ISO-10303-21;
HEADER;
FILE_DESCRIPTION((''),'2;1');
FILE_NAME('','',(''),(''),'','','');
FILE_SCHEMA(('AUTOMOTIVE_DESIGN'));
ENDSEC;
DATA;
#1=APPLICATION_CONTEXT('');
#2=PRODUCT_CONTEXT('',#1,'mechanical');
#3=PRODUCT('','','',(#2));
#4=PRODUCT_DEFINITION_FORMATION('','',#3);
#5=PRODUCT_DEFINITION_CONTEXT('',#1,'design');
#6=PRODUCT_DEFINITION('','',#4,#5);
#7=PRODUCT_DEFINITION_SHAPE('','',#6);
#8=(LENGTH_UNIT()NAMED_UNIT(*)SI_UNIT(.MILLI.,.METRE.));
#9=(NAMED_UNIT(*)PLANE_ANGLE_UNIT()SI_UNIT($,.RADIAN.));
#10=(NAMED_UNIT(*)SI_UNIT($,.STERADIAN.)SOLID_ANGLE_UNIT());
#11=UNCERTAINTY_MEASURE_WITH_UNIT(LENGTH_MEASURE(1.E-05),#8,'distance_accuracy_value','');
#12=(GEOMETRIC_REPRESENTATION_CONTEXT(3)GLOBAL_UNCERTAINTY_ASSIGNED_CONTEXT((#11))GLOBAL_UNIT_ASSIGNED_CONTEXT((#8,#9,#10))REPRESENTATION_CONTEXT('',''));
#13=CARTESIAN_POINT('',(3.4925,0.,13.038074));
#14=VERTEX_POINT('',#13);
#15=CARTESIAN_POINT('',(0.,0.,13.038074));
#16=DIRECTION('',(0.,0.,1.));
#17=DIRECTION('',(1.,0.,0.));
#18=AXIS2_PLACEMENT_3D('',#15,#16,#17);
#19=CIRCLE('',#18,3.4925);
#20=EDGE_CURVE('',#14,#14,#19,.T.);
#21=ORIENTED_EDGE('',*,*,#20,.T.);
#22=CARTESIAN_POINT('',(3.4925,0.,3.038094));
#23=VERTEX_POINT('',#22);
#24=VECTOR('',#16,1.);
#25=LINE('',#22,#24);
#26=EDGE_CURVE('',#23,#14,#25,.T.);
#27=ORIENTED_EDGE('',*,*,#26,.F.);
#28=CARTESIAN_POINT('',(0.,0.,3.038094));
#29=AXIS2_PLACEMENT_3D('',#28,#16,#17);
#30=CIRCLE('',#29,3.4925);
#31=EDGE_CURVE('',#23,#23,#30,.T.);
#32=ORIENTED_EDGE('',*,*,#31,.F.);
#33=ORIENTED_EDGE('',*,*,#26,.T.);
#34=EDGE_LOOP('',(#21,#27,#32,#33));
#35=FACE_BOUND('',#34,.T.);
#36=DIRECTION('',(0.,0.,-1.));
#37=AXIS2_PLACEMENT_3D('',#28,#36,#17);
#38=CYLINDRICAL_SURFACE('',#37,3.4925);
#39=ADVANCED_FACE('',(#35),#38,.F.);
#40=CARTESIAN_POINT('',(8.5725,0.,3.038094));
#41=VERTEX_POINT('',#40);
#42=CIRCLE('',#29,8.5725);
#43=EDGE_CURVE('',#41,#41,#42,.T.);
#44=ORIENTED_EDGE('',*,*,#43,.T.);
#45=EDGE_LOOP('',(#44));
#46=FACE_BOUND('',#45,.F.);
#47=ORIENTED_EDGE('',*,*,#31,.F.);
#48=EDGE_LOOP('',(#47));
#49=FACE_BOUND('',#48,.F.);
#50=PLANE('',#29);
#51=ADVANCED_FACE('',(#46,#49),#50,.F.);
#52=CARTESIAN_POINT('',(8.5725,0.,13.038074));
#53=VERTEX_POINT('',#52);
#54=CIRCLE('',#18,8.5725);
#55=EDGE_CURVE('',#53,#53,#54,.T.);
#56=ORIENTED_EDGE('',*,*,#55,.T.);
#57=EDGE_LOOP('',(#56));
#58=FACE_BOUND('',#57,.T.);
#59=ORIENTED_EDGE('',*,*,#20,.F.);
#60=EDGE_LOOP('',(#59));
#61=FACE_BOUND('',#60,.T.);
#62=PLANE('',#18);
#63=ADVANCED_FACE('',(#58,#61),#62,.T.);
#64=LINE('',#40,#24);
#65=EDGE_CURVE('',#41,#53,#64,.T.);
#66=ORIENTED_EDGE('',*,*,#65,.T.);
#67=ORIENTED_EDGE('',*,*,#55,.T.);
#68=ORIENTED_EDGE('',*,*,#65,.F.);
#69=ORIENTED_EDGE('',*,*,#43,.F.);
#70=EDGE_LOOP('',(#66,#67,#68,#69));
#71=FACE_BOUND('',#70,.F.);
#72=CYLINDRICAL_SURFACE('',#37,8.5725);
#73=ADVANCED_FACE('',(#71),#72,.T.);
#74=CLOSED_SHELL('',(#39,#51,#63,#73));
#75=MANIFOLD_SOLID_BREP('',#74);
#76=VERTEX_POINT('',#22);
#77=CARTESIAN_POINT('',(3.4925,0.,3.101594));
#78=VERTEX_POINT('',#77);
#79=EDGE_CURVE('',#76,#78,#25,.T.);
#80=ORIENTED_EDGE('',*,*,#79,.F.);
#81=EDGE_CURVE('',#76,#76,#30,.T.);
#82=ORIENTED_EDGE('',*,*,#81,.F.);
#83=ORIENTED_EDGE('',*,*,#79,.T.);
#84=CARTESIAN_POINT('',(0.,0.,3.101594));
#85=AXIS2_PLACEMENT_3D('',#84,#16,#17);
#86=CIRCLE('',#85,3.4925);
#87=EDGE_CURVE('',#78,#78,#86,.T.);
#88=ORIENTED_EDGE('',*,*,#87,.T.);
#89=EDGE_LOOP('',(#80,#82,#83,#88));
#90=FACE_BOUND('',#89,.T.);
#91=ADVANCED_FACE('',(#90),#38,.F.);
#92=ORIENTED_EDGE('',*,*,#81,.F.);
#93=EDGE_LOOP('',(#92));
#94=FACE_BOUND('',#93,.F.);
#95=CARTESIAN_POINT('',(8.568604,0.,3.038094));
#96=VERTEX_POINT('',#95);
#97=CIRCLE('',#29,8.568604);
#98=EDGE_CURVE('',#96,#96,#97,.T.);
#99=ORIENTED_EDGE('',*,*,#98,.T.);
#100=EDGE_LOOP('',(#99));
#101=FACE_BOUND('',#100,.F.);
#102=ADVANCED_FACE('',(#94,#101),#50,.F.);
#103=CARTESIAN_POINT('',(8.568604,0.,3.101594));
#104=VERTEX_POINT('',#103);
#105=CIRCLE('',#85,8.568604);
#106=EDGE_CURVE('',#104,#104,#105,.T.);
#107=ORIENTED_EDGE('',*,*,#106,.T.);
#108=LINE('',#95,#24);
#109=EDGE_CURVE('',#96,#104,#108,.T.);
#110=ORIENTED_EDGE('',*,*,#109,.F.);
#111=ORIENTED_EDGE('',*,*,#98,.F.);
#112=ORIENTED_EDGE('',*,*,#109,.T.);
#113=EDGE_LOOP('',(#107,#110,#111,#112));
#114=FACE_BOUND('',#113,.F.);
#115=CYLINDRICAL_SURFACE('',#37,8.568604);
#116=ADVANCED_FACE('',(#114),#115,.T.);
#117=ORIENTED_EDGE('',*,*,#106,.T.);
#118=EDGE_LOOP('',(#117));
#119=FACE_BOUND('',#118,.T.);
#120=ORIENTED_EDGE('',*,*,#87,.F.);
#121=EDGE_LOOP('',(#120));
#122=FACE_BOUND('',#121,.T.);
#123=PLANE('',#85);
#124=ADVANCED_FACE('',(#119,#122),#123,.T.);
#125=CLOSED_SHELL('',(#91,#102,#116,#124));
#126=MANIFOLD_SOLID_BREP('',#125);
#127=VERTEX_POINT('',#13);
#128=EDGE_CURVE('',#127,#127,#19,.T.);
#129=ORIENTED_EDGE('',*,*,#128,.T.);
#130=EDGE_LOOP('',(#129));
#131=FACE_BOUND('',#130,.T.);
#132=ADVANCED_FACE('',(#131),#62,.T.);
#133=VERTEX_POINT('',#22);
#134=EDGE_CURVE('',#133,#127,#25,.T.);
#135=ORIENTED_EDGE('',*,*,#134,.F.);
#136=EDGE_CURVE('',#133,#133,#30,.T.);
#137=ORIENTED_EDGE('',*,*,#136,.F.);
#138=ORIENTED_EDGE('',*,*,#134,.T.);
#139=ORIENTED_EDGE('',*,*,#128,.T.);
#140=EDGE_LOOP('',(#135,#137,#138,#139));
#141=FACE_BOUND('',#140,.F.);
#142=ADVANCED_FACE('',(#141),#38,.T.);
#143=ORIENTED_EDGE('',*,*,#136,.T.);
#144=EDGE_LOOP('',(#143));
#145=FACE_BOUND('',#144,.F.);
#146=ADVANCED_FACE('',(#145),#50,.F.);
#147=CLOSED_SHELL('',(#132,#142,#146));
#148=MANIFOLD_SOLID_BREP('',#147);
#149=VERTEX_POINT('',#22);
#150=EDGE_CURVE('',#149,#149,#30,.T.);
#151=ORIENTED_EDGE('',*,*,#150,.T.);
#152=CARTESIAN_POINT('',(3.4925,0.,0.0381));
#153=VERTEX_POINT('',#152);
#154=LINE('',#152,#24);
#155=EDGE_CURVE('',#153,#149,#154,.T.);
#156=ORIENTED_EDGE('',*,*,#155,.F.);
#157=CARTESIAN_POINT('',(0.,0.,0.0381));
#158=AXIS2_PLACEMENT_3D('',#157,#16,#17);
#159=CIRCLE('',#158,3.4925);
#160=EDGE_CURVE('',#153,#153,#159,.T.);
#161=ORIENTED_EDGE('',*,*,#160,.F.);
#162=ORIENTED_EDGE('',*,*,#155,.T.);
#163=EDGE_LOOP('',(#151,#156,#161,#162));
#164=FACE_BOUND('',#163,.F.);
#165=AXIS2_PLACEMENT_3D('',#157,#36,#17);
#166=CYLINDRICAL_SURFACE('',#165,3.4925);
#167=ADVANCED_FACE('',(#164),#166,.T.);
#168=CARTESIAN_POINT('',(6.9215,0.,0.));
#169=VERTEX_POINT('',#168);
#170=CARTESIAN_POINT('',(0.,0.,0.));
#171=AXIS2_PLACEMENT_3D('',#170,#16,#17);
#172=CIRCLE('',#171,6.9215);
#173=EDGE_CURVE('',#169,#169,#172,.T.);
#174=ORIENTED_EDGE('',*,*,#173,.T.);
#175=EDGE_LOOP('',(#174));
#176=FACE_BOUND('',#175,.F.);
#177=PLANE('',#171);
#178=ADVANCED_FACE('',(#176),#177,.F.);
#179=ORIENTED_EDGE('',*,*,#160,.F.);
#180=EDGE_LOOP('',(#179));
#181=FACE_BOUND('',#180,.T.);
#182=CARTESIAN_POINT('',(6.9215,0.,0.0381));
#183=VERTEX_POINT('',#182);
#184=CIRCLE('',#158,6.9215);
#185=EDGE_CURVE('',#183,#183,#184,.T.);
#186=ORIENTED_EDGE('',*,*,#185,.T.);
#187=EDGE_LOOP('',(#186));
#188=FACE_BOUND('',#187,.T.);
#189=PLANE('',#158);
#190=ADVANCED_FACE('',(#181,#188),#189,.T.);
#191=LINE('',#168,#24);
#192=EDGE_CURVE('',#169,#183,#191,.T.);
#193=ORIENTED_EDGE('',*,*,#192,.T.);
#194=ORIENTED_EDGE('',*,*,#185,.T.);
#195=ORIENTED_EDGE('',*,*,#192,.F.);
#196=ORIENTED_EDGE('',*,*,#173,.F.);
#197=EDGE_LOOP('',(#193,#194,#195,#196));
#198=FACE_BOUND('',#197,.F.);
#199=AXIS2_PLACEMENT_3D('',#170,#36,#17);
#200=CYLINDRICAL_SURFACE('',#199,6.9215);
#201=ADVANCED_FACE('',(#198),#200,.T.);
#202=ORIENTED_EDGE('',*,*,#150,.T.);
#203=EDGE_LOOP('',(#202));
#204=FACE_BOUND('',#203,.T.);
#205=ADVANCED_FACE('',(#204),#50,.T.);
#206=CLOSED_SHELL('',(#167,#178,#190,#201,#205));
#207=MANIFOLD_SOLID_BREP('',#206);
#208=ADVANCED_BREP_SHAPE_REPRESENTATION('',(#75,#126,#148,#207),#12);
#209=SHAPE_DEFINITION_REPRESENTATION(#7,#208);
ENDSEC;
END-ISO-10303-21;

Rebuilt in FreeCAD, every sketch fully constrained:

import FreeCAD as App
import Part
import Sketcher
Q = App.Units.Quantity

doc = App.newDocument("Part")
body = doc.addObject("PartDesign::Body", "Body")

sketch1 = body.newObject("Sketcher::SketchObject", "Sketch")
sketch1.AttachmentSupport = (doc.getObject("XY_Plane"), [""])
sketch1.MapMode = "FlatFace"
sketch1.addGeometry(Part.Circle(App.Vector(0, 0, 0), App.Vector(0, 0, 1), 7), False)
sketch1.addConstraint([
    Sketcher.Constraint("Coincident", 0, 3, -1, 1),
    Sketcher.Constraint("Diameter", 0, Q("0.545 in")),
])
pad1 = body.newObject("PartDesign::Pad", "Pad")
pad1.Profile = sketch1
pad1.Length = Q("0.0015 in")

sketch2 = body.newObject("Sketcher::SketchObject", "Sketch001")
sketch2.AttachmentSupport = (doc.getObject("XY_Plane"), [""])
sketch2.MapMode = "FlatFace"
sketch2.AttachmentOffset = App.Placement(App.Vector(0, 0, 0.0015 * 25.4), App.Rotation())
sketch2.addGeometry(Part.Circle(App.Vector(0, 0, 0), App.Vector(0, 0, 1), 3.5), False)
sketch2.addConstraint([
    Sketcher.Constraint("Coincident", 0, 3, -1, 1),
    Sketcher.Constraint("Diameter", 0, Q("0.275 in")),
])
pad2 = body.newObject("PartDesign::Pad", "Pad001")
pad2.Profile = sketch2
pad2.Length = 2.999994
body2 = doc.addObject("PartDesign::Body", "Body001")

sketch3 = body2.newObject("Sketcher::SketchObject", "Sketch002")
sketch3.AttachmentSupport = (doc.getObject("XY_Plane001"), [""])
sketch3.MapMode = "FlatFace"
sketch3.AttachmentOffset = App.Placement(App.Vector(0, 0, 3.038094), App.Rotation())
sketch3.addGeometry([
    Part.Circle(App.Vector(0, 0, 0), App.Vector(0, 0, 1), 8.6),
    Part.Circle(App.Vector(0, 0, 0), App.Vector(0, 0, 1), 3.5),
], False)
sketch3.addConstraint([
    Sketcher.Constraint("Coincident", 0, 3, -1, 1),
    Sketcher.Constraint("Coincident", 1, 3, -1, 1),
    Sketcher.Constraint("Diameter", 0, Q("0.675 in")),
    Sketcher.Constraint("Diameter", 1, Q("0.275 in")),
])
pad3 = body2.newObject("PartDesign::Pad", "Pad002")
pad3.Profile = sketch3
pad3.Length = Q("0.3937 in")
body3 = doc.addObject("PartDesign::Body", "Body002")

sketch4 = body3.newObject("Sketcher::SketchObject", "Sketch003")
sketch4.AttachmentSupport = (doc.getObject("XY_Plane002"), [""])
sketch4.MapMode = "FlatFace"
sketch4.AttachmentOffset = App.Placement(App.Vector(0, 0, 3.038094), App.Rotation())
sketch4.addGeometry([
    Part.Circle(App.Vector(0, 0, 0), App.Vector(0, 0, 1), 8.6),
    Part.Circle(App.Vector(0, 0, 0), App.Vector(0, 0, 1), 3.5),
], False)
sketch4.addConstraint([
    Sketcher.Constraint("Coincident", 0, 3, -1, 1),
    Sketcher.Constraint("Coincident", 1, 3, -1, 1),
    Sketcher.Constraint("Diameter", 1, Q("0.275 in")),
    Sketcher.Constraint("Diameter", 0, 17.137207),
])
pad4 = body3.newObject("PartDesign::Pad", "Pad003")
pad4.Profile = sketch4
pad4.Length = Q("0.0025 in")
body4 = doc.addObject("PartDesign::Body", "Body003")

sketch5 = body4.newObject("Sketcher::SketchObject", "Sketch004")
sketch5.AttachmentSupport = (doc.getObject("XY_Plane003"), [""])
sketch5.MapMode = "FlatFace"
sketch5.AttachmentOffset = App.Placement(App.Vector(0, 0, 3.038094), App.Rotation())
sketch5.addGeometry(Part.Circle(App.Vector(0, 0, 0), App.Vector(0, 0, 1), 3.5), False)
sketch5.addConstraint([
    Sketcher.Constraint("Coincident", 0, 3, -1, 1),
    Sketcher.Constraint("Diameter", 0, Q("0.275 in")),
])
pad5 = body4.newObject("PartDesign::Pad", "Pad004")
pad5.Profile = sketch5
pad5.Length = Q("0.3937 in")

doc.recompute()
